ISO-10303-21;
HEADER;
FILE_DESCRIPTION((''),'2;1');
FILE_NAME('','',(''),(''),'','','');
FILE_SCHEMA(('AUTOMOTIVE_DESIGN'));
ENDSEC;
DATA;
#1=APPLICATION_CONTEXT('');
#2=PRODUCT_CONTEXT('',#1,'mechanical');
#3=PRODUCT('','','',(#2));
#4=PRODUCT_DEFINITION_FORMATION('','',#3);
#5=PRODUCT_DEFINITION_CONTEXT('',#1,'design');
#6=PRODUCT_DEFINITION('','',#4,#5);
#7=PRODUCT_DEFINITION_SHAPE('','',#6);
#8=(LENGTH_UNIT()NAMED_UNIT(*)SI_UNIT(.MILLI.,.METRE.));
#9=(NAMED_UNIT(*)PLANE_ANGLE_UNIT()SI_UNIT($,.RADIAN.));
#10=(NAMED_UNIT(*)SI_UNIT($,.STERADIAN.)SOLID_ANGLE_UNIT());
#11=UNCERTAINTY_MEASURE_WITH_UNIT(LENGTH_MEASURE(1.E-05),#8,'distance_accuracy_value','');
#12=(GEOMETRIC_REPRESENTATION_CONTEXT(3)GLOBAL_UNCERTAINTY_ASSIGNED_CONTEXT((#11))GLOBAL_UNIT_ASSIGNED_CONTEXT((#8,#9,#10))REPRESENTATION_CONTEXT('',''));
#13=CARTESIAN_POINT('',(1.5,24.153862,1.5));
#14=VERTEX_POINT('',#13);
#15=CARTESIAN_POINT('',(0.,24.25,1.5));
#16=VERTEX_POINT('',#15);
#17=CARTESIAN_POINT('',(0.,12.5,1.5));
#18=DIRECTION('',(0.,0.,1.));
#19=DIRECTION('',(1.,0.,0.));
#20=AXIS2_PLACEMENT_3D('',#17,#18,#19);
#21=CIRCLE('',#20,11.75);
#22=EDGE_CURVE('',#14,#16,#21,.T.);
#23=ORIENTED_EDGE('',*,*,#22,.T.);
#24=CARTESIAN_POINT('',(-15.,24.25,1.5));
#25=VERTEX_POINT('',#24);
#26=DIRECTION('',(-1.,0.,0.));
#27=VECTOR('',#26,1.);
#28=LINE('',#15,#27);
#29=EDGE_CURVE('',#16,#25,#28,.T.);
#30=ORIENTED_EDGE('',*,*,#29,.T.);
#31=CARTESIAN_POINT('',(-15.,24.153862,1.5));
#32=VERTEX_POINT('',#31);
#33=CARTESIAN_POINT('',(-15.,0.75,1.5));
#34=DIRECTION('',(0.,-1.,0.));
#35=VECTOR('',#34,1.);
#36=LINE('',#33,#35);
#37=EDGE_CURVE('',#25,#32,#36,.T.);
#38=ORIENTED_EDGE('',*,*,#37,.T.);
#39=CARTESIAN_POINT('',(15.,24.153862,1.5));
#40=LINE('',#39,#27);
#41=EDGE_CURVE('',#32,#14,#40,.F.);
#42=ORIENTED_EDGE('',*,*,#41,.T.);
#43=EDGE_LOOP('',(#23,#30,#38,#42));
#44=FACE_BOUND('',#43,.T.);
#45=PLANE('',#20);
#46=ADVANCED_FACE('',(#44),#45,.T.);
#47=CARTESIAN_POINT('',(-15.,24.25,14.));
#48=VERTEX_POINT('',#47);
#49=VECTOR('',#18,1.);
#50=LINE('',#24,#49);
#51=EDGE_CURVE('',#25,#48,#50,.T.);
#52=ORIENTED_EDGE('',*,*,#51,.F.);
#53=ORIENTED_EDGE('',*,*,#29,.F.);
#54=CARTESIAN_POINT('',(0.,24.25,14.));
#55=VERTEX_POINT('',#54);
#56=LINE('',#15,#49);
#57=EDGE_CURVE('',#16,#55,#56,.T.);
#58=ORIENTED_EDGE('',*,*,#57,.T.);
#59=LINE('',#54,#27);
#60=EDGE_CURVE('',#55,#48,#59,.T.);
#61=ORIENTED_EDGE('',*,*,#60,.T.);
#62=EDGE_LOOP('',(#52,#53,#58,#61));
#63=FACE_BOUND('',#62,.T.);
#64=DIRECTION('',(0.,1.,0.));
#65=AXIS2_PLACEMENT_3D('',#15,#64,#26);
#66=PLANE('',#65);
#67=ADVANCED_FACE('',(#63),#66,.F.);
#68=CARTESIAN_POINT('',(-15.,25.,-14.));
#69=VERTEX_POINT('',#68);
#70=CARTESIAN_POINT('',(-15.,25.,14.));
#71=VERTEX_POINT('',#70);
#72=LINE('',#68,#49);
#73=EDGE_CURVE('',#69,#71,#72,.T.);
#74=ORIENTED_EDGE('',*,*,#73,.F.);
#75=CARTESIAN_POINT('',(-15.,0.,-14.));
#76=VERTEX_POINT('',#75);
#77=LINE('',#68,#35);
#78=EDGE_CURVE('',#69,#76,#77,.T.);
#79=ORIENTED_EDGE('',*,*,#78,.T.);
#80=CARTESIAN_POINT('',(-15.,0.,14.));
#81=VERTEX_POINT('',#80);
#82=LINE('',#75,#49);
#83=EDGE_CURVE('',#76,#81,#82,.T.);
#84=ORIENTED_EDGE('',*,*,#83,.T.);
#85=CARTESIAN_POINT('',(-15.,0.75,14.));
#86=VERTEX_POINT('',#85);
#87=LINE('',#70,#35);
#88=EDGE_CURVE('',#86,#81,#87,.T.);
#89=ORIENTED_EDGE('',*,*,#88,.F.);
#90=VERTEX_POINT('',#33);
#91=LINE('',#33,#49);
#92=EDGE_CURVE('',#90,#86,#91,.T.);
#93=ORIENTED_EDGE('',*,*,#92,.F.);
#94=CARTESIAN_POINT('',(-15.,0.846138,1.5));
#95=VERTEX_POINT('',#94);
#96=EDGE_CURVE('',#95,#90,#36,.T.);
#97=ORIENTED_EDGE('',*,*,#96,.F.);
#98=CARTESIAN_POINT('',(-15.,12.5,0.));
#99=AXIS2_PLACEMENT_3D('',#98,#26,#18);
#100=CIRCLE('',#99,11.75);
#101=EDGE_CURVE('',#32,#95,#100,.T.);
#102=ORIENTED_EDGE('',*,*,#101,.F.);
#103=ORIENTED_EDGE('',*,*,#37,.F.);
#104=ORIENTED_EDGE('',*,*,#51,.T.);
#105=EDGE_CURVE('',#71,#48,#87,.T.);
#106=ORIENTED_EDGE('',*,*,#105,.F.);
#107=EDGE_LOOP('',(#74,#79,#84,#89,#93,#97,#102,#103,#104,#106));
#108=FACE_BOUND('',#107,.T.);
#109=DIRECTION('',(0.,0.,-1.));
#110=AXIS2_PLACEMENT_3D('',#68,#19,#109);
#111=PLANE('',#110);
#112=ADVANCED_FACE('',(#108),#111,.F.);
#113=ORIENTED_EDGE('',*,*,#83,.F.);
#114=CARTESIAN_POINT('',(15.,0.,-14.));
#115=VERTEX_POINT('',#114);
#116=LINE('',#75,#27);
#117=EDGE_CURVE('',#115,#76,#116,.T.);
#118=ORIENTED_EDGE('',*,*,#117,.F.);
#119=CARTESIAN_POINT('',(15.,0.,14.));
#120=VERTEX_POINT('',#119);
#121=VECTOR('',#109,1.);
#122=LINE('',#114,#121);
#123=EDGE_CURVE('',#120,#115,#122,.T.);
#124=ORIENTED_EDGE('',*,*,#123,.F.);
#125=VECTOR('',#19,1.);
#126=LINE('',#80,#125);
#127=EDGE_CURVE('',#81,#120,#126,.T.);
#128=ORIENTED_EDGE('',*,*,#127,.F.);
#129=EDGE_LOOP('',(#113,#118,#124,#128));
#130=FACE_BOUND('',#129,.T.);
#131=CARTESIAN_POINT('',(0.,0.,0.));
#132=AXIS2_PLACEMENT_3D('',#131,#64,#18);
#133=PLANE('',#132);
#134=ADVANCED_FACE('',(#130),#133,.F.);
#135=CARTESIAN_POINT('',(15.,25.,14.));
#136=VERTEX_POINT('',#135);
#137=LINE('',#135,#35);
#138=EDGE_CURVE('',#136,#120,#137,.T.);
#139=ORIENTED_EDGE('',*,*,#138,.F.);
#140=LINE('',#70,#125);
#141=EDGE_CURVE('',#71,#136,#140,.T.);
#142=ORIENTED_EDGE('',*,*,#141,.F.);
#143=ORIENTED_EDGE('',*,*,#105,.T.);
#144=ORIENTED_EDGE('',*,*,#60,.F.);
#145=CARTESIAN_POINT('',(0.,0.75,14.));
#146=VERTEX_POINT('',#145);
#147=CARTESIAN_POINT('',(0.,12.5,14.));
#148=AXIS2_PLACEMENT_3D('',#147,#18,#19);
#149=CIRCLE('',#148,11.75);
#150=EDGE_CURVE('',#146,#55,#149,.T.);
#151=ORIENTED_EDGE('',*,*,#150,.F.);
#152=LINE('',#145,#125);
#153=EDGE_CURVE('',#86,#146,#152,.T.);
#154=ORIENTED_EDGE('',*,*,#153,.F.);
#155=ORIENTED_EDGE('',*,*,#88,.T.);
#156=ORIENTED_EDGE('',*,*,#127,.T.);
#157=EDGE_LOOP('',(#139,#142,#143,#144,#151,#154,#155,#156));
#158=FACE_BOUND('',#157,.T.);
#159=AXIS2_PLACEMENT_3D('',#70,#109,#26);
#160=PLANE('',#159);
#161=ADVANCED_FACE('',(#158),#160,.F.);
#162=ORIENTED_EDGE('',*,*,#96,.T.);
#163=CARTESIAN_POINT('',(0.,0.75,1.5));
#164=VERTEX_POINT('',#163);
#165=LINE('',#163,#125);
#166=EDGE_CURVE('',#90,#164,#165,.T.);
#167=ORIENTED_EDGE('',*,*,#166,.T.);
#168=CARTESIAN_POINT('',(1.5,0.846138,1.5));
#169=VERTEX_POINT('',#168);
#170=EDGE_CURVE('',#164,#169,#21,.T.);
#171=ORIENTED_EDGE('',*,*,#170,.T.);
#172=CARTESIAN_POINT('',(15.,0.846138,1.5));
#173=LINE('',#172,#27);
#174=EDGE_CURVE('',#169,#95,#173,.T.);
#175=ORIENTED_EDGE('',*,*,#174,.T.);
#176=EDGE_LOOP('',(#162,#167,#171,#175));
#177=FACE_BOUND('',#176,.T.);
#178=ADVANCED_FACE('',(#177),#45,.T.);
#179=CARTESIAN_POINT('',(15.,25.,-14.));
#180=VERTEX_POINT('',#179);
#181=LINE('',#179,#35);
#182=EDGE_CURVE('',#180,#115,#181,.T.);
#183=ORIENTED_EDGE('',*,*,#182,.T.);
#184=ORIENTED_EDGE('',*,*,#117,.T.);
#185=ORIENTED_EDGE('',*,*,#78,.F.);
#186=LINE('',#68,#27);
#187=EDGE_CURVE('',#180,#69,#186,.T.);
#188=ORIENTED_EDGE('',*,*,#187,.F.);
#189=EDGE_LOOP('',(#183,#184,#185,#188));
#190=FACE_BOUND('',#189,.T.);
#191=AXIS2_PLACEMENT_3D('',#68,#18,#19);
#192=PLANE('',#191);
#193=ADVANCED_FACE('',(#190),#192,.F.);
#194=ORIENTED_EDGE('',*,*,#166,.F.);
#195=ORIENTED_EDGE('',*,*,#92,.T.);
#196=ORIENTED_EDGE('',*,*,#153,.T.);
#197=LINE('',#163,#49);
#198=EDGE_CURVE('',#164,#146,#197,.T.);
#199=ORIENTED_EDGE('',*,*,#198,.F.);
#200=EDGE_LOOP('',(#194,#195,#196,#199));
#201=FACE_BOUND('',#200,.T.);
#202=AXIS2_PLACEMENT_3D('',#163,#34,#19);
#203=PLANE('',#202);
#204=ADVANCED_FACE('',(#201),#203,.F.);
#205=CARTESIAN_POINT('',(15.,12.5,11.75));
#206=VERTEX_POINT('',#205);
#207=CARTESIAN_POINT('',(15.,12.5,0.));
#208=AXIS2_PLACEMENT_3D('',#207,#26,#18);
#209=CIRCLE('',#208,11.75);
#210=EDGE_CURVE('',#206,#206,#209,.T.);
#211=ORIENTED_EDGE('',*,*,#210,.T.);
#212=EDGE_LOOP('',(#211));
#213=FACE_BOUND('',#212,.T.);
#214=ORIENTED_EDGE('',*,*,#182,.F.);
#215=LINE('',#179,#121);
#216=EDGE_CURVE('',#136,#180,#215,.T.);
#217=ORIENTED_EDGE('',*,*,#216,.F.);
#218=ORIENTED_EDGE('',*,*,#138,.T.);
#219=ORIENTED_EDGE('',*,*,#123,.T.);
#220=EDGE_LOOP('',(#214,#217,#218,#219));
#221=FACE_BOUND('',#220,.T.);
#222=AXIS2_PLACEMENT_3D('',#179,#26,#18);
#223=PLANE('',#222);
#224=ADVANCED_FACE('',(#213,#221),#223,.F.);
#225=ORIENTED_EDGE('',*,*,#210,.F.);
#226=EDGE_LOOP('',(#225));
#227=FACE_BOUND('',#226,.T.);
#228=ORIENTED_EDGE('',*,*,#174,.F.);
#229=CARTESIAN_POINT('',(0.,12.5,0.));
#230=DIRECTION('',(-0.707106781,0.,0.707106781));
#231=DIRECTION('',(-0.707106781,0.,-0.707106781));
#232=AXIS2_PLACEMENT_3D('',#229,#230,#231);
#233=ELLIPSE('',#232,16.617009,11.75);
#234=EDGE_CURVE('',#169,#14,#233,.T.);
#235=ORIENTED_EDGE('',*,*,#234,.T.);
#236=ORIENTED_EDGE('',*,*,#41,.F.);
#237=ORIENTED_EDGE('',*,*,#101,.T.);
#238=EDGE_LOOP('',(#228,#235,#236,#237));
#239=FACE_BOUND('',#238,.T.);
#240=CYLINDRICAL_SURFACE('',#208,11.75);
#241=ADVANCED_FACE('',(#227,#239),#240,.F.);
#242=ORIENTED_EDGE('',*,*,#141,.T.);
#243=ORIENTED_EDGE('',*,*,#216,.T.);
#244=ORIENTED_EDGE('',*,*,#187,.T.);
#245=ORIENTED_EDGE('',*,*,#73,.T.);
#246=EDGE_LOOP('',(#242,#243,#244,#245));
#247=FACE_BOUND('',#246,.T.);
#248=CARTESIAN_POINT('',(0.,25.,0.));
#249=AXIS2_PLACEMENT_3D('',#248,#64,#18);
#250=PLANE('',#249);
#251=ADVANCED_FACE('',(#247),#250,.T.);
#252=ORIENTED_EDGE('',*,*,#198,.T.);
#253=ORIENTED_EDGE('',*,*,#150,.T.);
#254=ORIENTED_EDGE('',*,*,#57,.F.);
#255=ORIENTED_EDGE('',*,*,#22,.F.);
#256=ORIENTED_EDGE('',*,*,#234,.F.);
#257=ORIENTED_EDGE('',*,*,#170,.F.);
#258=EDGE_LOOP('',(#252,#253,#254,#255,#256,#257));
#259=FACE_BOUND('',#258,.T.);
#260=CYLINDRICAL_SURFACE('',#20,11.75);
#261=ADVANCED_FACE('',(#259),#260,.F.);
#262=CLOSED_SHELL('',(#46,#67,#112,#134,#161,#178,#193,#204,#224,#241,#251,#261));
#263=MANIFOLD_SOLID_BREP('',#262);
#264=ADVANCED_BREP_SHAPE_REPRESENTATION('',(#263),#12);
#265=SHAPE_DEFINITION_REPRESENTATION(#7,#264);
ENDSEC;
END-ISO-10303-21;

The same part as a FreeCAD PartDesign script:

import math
import FreeCAD as App
import Part
import Sketcher
from FreeCAD import Vector


def add_polygon(sketch, points):
    """Adds a closed chain of lines whose ends are joined by coincident constraints."""
    first, n = sketch.GeometryCount, len(points)
    for a, b in zip(points, points[1:] + points[:1]):
        sketch.addGeometry(Part.LineSegment(App.Vector(*a, 0), App.Vector(*b, 0)), False)
    for i in range(n):
        sketch.addConstraint(Sketcher.Constraint("Coincident", first + i, 2, first + (i + 1) % n, 1))

doc = App.newDocument("Part")
params = doc.addObject("Spreadsheet::Sheet", "Params")
for row, (alias, value) in enumerate([
    ("sketch1_width", "30 mm"),
    ("sketch1_height", "28 mm"),
    ("pad1_length", "25 mm"),
    ("sketch2_diameter", "23.5 mm"),
    ("sketch3_width", "15 mm"),
    ("sketch3_radius", "11.75 mm"),
    ("pocket2_length", "12.5 mm"),
], start=1):
    params.set(f"A{row}", alias)
    params.set(f"B{row}", "=" + value)
    params.setAlias(f"B{row}", alias)

body = doc.addObject("PartDesign::Body", "Body")

# Sketch on XZ plane
sketch1 = doc.addObject("Sketcher::SketchObject", "Sketch")
body.addObject(sketch1)
sketch1.AttachmentSupport = (doc.XZ_Plane, [""])
sketch1.MapMode = "FlatFace"
add_polygon(sketch1, [(-15, -14), (-15, 14), (15, 14), (15, -14)])  # lines 0-3
sketch1.addConstraint(Sketcher.Constraint("Vertical", 0))
sketch1.addConstraint(Sketcher.Constraint("Horizontal", 1))
sketch1.addConstraint(Sketcher.Constraint("Vertical", 2))
sketch1.addConstraint(Sketcher.Constraint("Horizontal", 3))
sketch1.addConstraint(Sketcher.Constraint("Symmetric", 0, 2, 2, 2, -1, 1))
sketch1.addConstraint(Sketcher.Constraint("DistanceX", 1, 1, 1, 2, 30.0))
sketch1.addConstraint(Sketcher.Constraint("DistanceY", 0, 1, 0, 2, 28.0))
sketch1.setExpression("Constraints[9]", "Params.sketch1_width")
sketch1.setExpression("Constraints[10]", "Params.sketch1_height")
pad1 = doc.addObject("PartDesign::Pad", "Pad")
body.addObject(pad1)
pad1.Profile = sketch1
pad1.setExpression("Length", "Params.pad1_length")
pad1.Reversed = True

# Sketch on YZ plane
sketch2 = doc.addObject("Sketcher::SketchObject", "Sketch001")
body.addObject(sketch2)
sketch2.AttachmentSupport = (doc.YZ_Plane, [""])
sketch2.MapMode = "FlatFace"
sketch2.AttachmentOffset = App.Placement(Vector(0, 0, -15), App.Rotation())
sketch2.addGeometry(Part.Circle(Vector(12, 0, 0), Vector(0, 0, 1), 12), False)
sketch2.addConstraint(Sketcher.Constraint("PointOnObject", 0, 3, -1))
sketch2.addConstraint(Sketcher.Constraint("Diameter", 0, 23.5))
sketch2.addConstraint(Sketcher.Constraint("DistanceX", -1, 1, 0, 3, 12.5))
sketch2.setExpression("Constraints[1]", "Params.sketch2_diameter")
pocket1 = doc.addObject("PartDesign::Pocket", "Pocket")
body.addObject(pocket1)
pocket1.Profile = sketch2
pocket1.Type = "ThroughAll"
pocket1.Reversed = True

# Sketch on XY plane
sketch3 = doc.addObject("Sketcher::SketchObject", "Sketch002")
body.addObject(sketch3)
sketch3.AttachmentSupport = (doc.XY_Plane, [""])
sketch3.MapMode = "FlatFace"
sketch3.AttachmentOffset = App.Placement(Vector(0, 0, 14), App.Rotation())
sketch3.addGeometry(Part.LineSegment(Vector(0, 24, 0), Vector(-15, 24, 0)), False)
sketch3.addGeometry(Part.LineSegment(Vector(-15, 24, 0), Vector(-15, 1, 0)), False)
sketch3.addGeometry(Part.LineSegment(Vector(-15, 1, 0), Vector(0, 1, 0)), False)
sketch3.addGeometry(Part.ArcOfCircle(Part.Circle(Vector(0, 12, 0), Vector(0, 0, 1), 12), math.radians(-90), math.radians(90)), False)
sketch3.addConstraint(Sketcher.Constraint("Coincident", 0, 2, 1, 1))
sketch3.addConstraint(Sketcher.Constraint("Coincident", 1, 2, 2, 1))
sketch3.addConstraint(Sketcher.Constraint("Tangent", 2, 2, 3, 1))
sketch3.addConstraint(Sketcher.Constraint("Tangent", 3, 2, 0, 1))
sketch3.addConstraint(Sketcher.Constraint("Horizontal", 0))
sketch3.addConstraint(Sketcher.Constraint("Vertical", 1))
sketch3.addConstraint(Sketcher.Constraint("Horizontal", 2))
sketch3.addConstraint(Sketcher.Constraint("PointOnObject", 3, 3, -2))
sketch3.addConstraint(Sketcher.Constraint("DistanceX", 0, 2, 0, 1, 15.0))
sketch3.addConstraint(Sketcher.Constraint("Radius", 3, 11.75))
sketch3.addConstraint(Sketcher.Constraint("DistanceY", -1, 1, 3, 3, 12.5))
sketch3.setExpression("Constraints[8]", "Params.sketch3_width")
sketch3.setExpression("Constraints[9]", "Params.sketch3_radius")
pocket2 = doc.addObject("PartDesign::Pocket", "Pocket001")
body.addObject(pocket2)
pocket2.Profile = sketch3
pocket2.setExpression("Length", "Params.pocket2_length")

doc.recompute()
